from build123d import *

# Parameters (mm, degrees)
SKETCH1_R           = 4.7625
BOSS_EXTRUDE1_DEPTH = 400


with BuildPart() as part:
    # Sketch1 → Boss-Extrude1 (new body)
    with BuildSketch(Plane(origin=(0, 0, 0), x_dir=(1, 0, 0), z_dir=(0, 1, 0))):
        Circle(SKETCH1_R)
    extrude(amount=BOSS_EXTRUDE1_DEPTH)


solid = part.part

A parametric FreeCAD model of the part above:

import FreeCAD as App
import Part
import Sketcher

V = App.Vector

doc = App.newDocument("Part")
body = doc.addObject("PartDesign::Body", "Body")

# Sketch on XZ plane
sketch1 = body.newObject("Sketcher::SketchObject", "Sketch")
sketch1.AttachmentSupport = (doc.getObject("XZ_Plane"), [""])
sketch1.MapMode = "FlatFace"
sketch1.addGeometry(Part.Circle(V(0, 0, 0), V(0, 0, 1), 4.8), False)
sketch1.addConstraint([
    Sketcher.Constraint("Coincident", 0, 3, -1, 1),
    Sketcher.Constraint("Diameter", 0, 9.525),
])
pad1 = body.newObject("PartDesign::Pad", "Pad")
pad1.Profile = sketch1
pad1.Length = 400
pad1.Reversed = True

doc.recompute()
